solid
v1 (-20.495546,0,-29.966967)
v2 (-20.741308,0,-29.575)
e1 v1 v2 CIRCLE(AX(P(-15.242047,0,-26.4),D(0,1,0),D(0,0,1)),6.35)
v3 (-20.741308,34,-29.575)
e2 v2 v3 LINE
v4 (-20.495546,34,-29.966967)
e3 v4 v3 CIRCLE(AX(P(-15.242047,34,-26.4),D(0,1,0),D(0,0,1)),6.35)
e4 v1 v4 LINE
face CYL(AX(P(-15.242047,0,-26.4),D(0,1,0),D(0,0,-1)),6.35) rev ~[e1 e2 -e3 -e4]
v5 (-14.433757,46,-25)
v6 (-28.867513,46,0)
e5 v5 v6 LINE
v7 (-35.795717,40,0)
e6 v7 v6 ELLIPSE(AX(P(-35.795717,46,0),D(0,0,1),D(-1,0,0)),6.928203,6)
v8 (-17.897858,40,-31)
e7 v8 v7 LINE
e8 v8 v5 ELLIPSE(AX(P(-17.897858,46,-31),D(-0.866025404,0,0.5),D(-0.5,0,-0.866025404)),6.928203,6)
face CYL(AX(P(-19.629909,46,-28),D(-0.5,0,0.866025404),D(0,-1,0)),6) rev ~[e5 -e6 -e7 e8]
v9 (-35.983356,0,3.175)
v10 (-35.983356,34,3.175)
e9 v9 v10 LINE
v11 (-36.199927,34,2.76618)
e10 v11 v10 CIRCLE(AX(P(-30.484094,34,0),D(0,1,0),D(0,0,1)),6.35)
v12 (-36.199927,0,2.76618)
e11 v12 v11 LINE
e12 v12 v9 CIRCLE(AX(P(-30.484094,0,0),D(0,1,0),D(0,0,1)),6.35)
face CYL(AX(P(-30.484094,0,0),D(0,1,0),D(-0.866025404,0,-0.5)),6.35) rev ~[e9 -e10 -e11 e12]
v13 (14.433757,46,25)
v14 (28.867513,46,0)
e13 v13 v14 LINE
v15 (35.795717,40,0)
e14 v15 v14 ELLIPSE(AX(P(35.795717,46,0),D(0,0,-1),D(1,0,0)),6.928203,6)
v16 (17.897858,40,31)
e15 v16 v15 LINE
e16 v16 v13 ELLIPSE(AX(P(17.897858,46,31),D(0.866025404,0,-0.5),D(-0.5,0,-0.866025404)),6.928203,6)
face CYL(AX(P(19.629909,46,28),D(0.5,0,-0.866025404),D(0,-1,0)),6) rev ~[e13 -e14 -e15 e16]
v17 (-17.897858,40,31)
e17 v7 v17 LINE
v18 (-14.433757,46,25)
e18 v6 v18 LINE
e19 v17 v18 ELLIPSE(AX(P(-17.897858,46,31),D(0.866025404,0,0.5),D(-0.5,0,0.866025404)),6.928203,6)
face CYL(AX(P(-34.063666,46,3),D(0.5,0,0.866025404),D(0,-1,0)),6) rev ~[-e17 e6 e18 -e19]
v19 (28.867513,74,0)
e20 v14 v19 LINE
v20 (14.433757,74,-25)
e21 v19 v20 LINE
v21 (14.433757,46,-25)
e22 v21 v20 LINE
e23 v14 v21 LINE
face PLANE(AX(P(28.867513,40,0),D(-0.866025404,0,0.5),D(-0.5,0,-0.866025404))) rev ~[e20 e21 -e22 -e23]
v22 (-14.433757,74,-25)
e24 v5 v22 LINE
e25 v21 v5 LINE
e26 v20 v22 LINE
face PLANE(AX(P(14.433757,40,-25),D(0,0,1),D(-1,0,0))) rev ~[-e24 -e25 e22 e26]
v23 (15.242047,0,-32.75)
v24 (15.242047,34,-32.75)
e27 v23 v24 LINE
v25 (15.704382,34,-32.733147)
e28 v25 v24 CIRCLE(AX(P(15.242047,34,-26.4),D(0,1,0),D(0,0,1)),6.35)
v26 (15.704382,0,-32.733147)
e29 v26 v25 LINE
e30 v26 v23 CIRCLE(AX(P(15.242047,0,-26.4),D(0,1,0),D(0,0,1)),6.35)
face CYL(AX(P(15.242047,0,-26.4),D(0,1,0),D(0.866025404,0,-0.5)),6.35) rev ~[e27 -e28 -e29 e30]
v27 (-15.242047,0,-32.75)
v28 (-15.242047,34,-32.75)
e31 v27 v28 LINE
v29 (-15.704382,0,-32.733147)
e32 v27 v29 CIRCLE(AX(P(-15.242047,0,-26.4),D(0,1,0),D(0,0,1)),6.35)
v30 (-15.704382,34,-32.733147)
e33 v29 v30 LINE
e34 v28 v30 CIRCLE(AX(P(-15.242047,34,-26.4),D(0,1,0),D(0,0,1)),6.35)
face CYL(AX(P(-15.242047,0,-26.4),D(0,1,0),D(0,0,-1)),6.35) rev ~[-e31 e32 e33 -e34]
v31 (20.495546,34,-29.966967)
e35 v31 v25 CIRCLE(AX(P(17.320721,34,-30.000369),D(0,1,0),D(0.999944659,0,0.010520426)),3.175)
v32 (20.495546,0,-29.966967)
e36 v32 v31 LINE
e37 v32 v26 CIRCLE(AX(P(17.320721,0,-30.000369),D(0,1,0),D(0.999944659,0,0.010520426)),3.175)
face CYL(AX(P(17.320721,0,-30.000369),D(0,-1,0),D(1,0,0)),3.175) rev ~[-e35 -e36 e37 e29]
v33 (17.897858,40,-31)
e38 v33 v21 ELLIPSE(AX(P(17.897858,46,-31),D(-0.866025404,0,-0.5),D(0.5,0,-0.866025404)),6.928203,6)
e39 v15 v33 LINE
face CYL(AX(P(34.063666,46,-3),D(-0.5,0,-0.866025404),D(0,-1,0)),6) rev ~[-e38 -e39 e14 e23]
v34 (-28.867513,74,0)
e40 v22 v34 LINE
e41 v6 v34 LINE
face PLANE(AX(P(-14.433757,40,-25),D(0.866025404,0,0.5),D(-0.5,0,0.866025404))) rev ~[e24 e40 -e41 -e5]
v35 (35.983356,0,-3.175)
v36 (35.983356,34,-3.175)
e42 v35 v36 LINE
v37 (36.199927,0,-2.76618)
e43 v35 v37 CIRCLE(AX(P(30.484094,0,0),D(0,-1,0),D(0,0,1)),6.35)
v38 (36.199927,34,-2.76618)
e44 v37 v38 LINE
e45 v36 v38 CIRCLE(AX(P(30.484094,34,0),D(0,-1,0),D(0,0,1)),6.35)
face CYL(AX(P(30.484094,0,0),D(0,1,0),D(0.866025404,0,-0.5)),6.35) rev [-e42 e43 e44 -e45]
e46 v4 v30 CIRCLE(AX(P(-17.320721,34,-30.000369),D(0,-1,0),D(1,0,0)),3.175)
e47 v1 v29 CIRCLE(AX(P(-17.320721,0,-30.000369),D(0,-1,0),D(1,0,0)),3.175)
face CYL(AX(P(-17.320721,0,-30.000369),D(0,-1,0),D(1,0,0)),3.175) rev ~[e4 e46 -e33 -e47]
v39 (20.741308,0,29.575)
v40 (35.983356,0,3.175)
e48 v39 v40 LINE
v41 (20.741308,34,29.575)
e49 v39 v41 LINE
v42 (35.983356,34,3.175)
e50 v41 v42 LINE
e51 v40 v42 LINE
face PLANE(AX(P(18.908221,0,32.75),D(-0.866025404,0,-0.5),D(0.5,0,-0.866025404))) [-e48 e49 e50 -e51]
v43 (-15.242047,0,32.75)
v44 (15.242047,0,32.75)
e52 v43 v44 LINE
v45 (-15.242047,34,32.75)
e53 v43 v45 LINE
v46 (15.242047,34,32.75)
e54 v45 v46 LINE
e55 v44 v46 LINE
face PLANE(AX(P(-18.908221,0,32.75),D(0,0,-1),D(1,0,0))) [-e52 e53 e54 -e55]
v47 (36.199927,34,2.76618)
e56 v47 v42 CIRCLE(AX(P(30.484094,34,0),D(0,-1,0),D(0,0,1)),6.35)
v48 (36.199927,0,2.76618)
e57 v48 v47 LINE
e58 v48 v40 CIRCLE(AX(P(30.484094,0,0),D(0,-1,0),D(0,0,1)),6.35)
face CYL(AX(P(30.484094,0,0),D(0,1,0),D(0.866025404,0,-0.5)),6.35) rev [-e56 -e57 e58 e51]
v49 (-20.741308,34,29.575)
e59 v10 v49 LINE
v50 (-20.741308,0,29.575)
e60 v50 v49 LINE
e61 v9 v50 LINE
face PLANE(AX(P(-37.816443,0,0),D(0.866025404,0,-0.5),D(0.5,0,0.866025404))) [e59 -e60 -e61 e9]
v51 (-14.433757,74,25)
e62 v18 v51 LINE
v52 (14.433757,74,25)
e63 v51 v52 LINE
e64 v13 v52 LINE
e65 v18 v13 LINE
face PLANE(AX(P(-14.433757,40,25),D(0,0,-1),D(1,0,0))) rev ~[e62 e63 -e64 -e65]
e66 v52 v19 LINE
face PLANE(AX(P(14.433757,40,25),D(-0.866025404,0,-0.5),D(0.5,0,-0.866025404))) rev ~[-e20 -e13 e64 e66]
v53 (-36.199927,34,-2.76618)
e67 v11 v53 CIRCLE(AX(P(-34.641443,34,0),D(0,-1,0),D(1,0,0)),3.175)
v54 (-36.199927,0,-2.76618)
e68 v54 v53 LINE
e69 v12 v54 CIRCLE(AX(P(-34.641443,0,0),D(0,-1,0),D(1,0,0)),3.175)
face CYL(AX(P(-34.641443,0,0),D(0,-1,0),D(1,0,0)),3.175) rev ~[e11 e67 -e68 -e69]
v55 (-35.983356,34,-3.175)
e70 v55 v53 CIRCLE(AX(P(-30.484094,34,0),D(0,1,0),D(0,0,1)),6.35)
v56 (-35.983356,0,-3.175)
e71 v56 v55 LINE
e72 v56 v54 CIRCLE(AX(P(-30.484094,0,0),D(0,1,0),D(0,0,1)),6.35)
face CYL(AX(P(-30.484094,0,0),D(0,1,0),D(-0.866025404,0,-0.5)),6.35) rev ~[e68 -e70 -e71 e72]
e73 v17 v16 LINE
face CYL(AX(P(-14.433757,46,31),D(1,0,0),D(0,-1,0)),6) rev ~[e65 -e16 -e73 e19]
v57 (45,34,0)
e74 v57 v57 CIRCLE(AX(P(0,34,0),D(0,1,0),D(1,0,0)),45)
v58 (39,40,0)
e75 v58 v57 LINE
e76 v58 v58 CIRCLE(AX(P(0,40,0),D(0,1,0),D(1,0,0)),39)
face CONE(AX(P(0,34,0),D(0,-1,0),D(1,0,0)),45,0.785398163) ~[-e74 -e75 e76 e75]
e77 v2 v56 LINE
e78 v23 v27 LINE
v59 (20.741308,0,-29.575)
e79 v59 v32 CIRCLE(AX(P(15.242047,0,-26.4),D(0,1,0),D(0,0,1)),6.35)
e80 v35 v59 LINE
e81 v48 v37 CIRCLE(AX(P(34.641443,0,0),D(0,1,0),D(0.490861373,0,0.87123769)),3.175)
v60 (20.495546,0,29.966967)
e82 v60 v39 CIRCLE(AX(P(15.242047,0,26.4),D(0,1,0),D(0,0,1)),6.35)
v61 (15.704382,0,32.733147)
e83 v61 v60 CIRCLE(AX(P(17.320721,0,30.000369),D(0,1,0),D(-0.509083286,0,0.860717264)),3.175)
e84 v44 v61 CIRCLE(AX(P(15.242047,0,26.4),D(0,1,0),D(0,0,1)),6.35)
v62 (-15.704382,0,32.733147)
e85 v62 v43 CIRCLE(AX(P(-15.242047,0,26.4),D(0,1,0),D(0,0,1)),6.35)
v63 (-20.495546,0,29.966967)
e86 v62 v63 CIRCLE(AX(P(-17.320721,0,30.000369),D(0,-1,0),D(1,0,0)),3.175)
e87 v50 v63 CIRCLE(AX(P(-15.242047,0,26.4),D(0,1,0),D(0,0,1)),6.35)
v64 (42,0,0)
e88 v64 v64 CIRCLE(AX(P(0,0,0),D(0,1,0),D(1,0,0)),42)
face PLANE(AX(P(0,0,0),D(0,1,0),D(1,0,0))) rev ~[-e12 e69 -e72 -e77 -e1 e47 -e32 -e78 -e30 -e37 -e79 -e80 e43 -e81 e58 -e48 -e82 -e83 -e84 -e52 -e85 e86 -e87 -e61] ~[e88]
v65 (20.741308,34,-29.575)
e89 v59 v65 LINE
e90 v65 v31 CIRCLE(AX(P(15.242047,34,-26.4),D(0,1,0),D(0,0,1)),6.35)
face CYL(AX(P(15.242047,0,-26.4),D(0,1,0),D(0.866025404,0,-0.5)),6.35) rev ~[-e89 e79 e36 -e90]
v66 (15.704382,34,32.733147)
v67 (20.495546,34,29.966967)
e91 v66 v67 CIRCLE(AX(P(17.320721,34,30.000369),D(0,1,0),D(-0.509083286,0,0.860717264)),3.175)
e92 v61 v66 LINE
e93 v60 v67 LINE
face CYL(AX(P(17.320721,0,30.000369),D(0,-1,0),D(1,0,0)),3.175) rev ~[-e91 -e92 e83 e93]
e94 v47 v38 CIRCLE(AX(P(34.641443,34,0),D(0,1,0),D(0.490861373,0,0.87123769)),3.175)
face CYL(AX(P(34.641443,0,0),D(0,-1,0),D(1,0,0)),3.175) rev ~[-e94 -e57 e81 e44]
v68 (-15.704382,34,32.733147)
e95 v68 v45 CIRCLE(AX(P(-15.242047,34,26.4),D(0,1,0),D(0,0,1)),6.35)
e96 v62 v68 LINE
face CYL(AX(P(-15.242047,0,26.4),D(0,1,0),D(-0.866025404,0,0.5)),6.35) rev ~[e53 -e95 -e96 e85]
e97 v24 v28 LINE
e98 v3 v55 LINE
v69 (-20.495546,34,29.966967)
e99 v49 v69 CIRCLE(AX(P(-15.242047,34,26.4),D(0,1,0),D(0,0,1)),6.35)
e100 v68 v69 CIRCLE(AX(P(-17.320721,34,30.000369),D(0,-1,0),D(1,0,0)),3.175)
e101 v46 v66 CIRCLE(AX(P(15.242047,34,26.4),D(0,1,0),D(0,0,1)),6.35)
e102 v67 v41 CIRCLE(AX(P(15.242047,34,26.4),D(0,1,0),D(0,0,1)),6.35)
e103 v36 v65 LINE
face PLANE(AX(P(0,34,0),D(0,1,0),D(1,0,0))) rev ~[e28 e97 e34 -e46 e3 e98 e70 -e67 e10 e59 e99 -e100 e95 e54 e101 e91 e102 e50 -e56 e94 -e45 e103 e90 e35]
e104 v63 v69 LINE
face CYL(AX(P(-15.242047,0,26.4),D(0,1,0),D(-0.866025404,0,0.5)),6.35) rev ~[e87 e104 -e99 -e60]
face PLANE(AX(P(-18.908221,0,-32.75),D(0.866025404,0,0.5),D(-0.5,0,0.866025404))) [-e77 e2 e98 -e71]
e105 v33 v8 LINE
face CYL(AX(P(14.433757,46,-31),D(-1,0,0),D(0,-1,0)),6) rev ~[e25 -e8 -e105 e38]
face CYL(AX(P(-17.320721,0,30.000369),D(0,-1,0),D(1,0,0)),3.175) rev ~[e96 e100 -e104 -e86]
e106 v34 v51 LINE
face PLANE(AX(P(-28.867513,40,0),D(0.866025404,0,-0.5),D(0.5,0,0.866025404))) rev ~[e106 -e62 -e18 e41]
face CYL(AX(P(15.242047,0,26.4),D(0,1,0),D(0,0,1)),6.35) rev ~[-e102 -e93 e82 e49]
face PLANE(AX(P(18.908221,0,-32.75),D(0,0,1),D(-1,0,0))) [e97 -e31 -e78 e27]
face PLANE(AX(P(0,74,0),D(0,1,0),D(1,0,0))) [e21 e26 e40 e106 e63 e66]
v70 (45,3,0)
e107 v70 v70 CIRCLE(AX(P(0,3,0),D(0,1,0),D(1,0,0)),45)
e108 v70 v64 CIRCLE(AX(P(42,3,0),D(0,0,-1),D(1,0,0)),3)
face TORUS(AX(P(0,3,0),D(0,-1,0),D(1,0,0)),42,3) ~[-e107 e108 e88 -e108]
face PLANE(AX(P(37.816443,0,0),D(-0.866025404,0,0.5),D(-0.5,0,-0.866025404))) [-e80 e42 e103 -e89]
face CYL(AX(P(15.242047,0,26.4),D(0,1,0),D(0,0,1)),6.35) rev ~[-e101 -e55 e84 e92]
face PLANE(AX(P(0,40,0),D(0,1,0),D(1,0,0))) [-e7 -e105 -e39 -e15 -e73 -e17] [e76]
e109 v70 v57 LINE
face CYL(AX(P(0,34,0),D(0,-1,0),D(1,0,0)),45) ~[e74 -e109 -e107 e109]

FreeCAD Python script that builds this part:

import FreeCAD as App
import Part
import Sketcher

V = App.Vector
Q = App.Units.Quantity


def edges_at(feature, points):
    """Names of the edges that pass closest to the given points."""
    edges = feature.Shape.Edges
    near = lambda p: min(range(len(edges)), key=lambda i: edges[i].distToShape(Part.Vertex(*p))[0])
    return sorted({f"Edge{near(p) + 1}" for p in points})

doc = App.newDocument("Part")
params = doc.addObject("Spreadsheet::Sheet", "Params")
for row, (alias, value) in enumerate([
    ("sketch1_diameter", "90 mm"),
    ("pad1_length", "34 mm"),
    ("sketch2_diameter", "90 mm"),
    ("pad2_length", "6 mm"),
    ("pad3_length", "34 mm"),
    ("fillet_radius", "6 mm"),
    ("chamfer_size", "6 mm"),
    ("fillet2_radius", "3 mm"),
    ("fillet3_radius", "6.35 mm"),
    ("sketch4_diameter", "6.35 mm"),
    ("pocket1_length", "34 mm"),
], start=1):
    params.set(f"A{row}", alias)
    params.set(f"B{row}", "=" + value)
    params.setAlias(f"B{row}", alias)

body = doc.addObject("PartDesign::Body", "Body")

sketch1 = body.newObject("Sketcher::SketchObject", "Sketch")
sketch1.AttachmentSupport = (doc.getObject("XZ_Plane"), [""])
sketch1.MapMode = "FlatFace"
sketch1.addGeometry([
    Part.Circle(V(0, 0, 0), V(0, 0, 1), 45),
    Part.LineSegment(V(18.908221, -32.75, 0), V(37.816443, 0, 0)),
    Part.LineSegment(V(37.816443, 0, 0), V(18.908221, 32.75, 0)),
    Part.LineSegment(V(18.908221, 32.75, 0), V(-18.908221, 32.75, 0)),
    Part.LineSegment(V(-18.908221, 32.75, 0), V(-37.816443, 0, 0)),
    Part.LineSegment(V(-37.816443, 0, 0), V(-18.908221, -32.75, 0)),
    Part.LineSegment(V(-18.908221, -32.75, 0), V(18.908221, -32.75, 0)),
], False)
sketch1.addConstraint([
    Sketcher.Constraint("Coincident", 1, 2, 2, 1),
    Sketcher.Constraint("Coincident", 2, 2, 3, 1),
    Sketcher.Constraint("Coincident", 3, 2, 4, 1),
    Sketcher.Constraint("Coincident", 4, 2, 5, 1),
    Sketcher.Constraint("Coincident", 5, 2, 6, 1),
    Sketcher.Constraint("Coincident", 6, 2, 1, 1),
    Sketcher.Constraint("Horizontal", 3),
    Sketcher.Constraint("Horizontal", 6),
    Sketcher.Constraint("Coincident", 0, 3, -1, 1),
    Sketcher.Constraint("Symmetric", 1, 2, 4, 2, -1, 1),
    Sketcher.Constraint("Symmetric", 2, 2, 5, 2, -1, 1),
    Sketcher.Constraint("PointOnObject", 1, 2, -1),
    Sketcher.Constraint("Parallel", 1, 4),
    Sketcher.Constraint("Vertical", 3, 2, 5, 2),
    Sketcher.Constraint("Diameter", 0, Q("90 mm")),
    Sketcher.Constraint("Angle", 1, Q("60 deg")),
    Sketcher.Constraint("DistanceY", 5, 2, 3, 2, Q("65.5 mm")),
    Sketcher.Constraint("DistanceX", 3, 2, 3, 1, Q("37.816443 mm")),
])
sketch1.setExpression("Constraints[14]", "Params.sketch1_diameter")
pad1 = body.newObject("PartDesign::Pad", "Pad")
pad1.Profile = sketch1
pad1.setExpression("Length", "Params.pad1_length")
pad1.Reversed = True

sketch2 = body.newObject("Sketcher::SketchObject", "Sketch001")
sketch2.AttachmentSupport = (doc.getObject("XZ_Plane"), [""])
sketch2.MapMode = "FlatFace"
sketch2.AttachmentOffset = App.Placement(V(0, 0, -34), App.Rotation())
sketch2.addGeometry(Part.Circle(V(0, 0, 0), V(0, 0, 1), 45), False)
sketch2.addConstraint([
    Sketcher.Constraint("Coincident", 0, 3, -1, 1),
    Sketcher.Constraint("Diameter", 0, Q("90 mm")),
])
sketch2.setExpression("Constraints[1]", "Params.sketch2_diameter")
pad2 = body.newObject("PartDesign::Pad", "Pad001")
pad2.Profile = sketch2
pad2.setExpression("Length", "Params.pad2_length")
pad2.Reversed = True

sketch3 = body.newObject("Sketcher::SketchObject", "Sketch002")
sketch3.AttachmentSupport = (doc.getObject("XZ_Plane"), [""])
sketch3.MapMode = "FlatFace"
sketch3.AttachmentOffset = App.Placement(V(0, 0, -40), App.Rotation())
sketch3.addGeometry([
    Part.LineSegment(V(28.867513, 0, 0), V(14.433757, -25, 0)),
    Part.LineSegment(V(14.433757, -25, 0), V(-14.433757, -25, 0)),
    Part.LineSegment(V(-14.433757, -25, 0), V(-28.867513, 0, 0)),
    Part.LineSegment(V(-28.867513, 0, 0), V(-14.433757, 25, 0)),
    Part.LineSegment(V(-14.433757, 25, 0), V(14.433757, 25, 0)),
    Part.LineSegment(V(14.433757, 25, 0), V(28.867513, 0, 0)),
], False)
sketch3.addConstraint([
    Sketcher.Constraint("Coincident", 0, 2, 1, 1),
    Sketcher.Constraint("Coincident", 1, 2, 2, 1),
    Sketcher.Constraint("Coincident", 2, 2, 3, 1),
    Sketcher.Constraint("Coincident", 3, 2, 4, 1),
    Sketcher.Constraint("Coincident", 4, 2, 5, 1),
    Sketcher.Constraint("Coincident", 5, 2, 0, 1),
    Sketcher.Constraint("Horizontal", 1),
    Sketcher.Constraint("Horizontal", 4),
    Sketcher.Constraint("Symmetric", 0, 2, 3, 2, -1, 1),
    Sketcher.Constraint("Symmetric", 2, 2, 5, 2, -1, 1),
    Sketcher.Constraint("PointOnObject", 2, 2, -1),
    Sketcher.Constraint("Parallel", 2, 5),
    Sketcher.Constraint("Vertical", 1, 2, 3, 2),
    Sketcher.Constraint("Angle", 0, Q("-120 deg")),
    Sketcher.Constraint("DistanceY", 0, 2, -1, 1, Q("25 mm")),
    Sketcher.Constraint("DistanceX", 1, 2, 1, 1, Q("28.867513 mm")),
])
pad3 = body.newObject("PartDesign::Pad", "Pad002")
pad3.Profile = sketch3
pad3.setExpression("Length", "Params.pad3_length")
pad3.Reversed = True
doc.recompute()

fillet = body.newObject("PartDesign::Fillet", "Fillet")
fillet.Base = (pad3, edges_at(pad3, [
    (21.651, 40, 12.5),
    (21.651, 40, -12.5),
    (0, 40, -25),
    (-21.651, 40, -12.5),
    (-21.651, 40, 12.5),
    (0, 40, 25),
]))
fillet.setExpression("Radius", "Params.fillet_radius")
doc.recompute()

chamfer = body.newObject("PartDesign::Chamfer", "Chamfer")
chamfer.Base = (fillet, edges_at(fillet, [(-45, 40, 0)]))
chamfer.setExpression("Size", "Params.chamfer_size")
doc.recompute()

fillet2 = body.newObject("PartDesign::Fillet", "Fillet001")
fillet2.Base = (chamfer, edges_at(chamfer, [(-45, 0, 0)]))
fillet2.setExpression("Radius", "Params.fillet2_radius")
doc.recompute()

fillet3 = body.newObject("PartDesign::Fillet", "Fillet002")
fillet3.Base = (fillet2, edges_at(fillet2, [
    (37.816, 17, 0),
    (18.908, 17, -32.75),
    (-18.908, 17, -32.75),
    (-37.816, 17, 0),
    (-18.908, 17, 32.75),
    (18.908, 17, 32.75),
]))
fillet3.setExpression("Radius", "Params.fillet3_radius")

sketch4 = body.newObject("Sketcher::SketchObject", "Sketch003")
sketch4.AttachmentSupport = (doc.getObject("XZ_Plane"), [""])
sketch4.MapMode = "FlatFace"
sketch4.addGeometry([
    Part.Circle(V(17.320721, 30.000369, 0), V(0, 0, 1), 3.175),
    Part.Circle(V(34.641443, 0, 0), V(0, 0, 1), 3.175),
    Part.Circle(V(17.320721, -30.000369, 0), V(0, 0, 1), 3.175),
    Part.Circle(V(-17.320721, -30.000369, 0), V(0, 0, 1), 3.175),
    Part.Circle(V(-34.641443, 0, 0), V(0, 0, 1), 3.175),
    Part.Circle(V(-17.320721, 30.000369, 0), V(0, 0, 1), 3.175),
], False)
sketch4.addConstraint([
    Sketcher.Constraint("Equal", 0, 1),
    Sketcher.Constraint("Equal", 1, 2),
    Sketcher.Constraint("Equal", 2, 3),
    Sketcher.Constraint("Equal", 3, 4),
    Sketcher.Constraint("Equal", 4, 5),
    Sketcher.Constraint("Symmetric", 0, 3, 3, 3, -1, 1),
    Sketcher.Constraint("Symmetric", 1, 3, 4, 3, -1, 1),
    Sketcher.Constraint("Symmetric", 2, 3, 5, 3, -1, 1),
    Sketcher.Constraint("Symmetric", 2, 3, 3, 3, -2),
    Sketcher.Constraint("PointOnObject", 1, 3, -1),
    Sketcher.Constraint("Diameter", 0, Q("6.35 mm")),
    Sketcher.Constraint("DistanceX", -1, 1, 0, 3, Q("17.320721 mm")),
    Sketcher.Constraint("DistanceY", -1, 1, 0, 3, Q("30.000369 mm")),
    Sketcher.Constraint("DistanceX", 0, 3, 1, 3, Q("17.320721 mm")),
])
sketch4.setExpression("Constraints[10]", "Params.sketch4_diameter")
pocket1 = body.newObject("PartDesign::Pocket", "Pocket")
pocket1.Profile = sketch4
pocket1.setExpression("Length", "Params.pocket1_length")

doc.recompute()
